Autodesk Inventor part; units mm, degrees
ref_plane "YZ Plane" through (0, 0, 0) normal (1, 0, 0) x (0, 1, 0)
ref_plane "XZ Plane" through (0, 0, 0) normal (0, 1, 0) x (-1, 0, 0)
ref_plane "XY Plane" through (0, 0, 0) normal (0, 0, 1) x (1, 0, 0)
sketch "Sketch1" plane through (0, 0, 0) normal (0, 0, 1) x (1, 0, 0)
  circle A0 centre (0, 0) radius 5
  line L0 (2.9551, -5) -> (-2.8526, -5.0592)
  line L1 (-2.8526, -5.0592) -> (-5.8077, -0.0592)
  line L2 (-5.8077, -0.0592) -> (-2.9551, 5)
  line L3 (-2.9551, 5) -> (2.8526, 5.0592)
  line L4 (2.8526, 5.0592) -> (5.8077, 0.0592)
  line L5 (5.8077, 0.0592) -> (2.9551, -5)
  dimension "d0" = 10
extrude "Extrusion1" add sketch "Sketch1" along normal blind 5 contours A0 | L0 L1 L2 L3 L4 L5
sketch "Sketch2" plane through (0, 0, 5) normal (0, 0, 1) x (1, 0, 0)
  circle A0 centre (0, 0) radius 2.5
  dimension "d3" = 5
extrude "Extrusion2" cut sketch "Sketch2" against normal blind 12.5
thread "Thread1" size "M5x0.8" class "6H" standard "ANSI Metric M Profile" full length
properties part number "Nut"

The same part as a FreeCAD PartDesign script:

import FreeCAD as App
import Part
import Sketcher


def add_polygon(sketch, points):
    """Adds a closed chain of lines whose ends are joined by coincident constraints."""
    first, n = sketch.GeometryCount, len(points)
    for a, b in zip(points, points[1:] + points[:1]):
        sketch.addGeometry(Part.LineSegment(App.Vector(*a, 0), App.Vector(*b, 0)), False)
    for i in range(n):
        sketch.addConstraint(Sketcher.Constraint("Coincident", first + i, 2, first + (i + 1) % n, 1))

doc = App.newDocument("Part")
params = doc.addObject("Spreadsheet::Sheet", "Params")
for row, (alias, value) in enumerate([
    ("pad1_length", "5 mm"),
    ("sketch2_diameter", "5 mm"),
    ("pocket1_length", "12.5 mm"),
], start=1):
    params.set(f"A{row}", alias)
    params.set(f"B{row}", "=" + value)
    params.setAlias(f"B{row}", alias)

body = doc.addObject("PartDesign::Body", "Body")

# Sketch on XY plane
sketch1 = body.newObject("Sketcher::SketchObject", "Sketch")
sketch1.AttachmentSupport = (doc.getObject("XY_Plane"), [""])
sketch1.MapMode = "FlatFace"
add_polygon(sketch1, [(-3, -5), (3, -5), (6, 0), (3, 5), (-3, 5), (-6, 0)])  # lines 0-5
sketch1.addConstraint([
    Sketcher.Constraint("Symmetric", 0, 2, 3, 2, -1, 1),
    Sketcher.Constraint("Symmetric", 1, 2, 4, 2, -1, 1),
    Sketcher.Constraint("Symmetric", 2, 2, 5, 2, -1, 1),
    Sketcher.Constraint("Equal", 0, 1),
    Sketcher.Constraint("Equal", 1, 2),
    Sketcher.Constraint("DistanceY", 0, 2, 3, 2, 10.0),
    Sketcher.Constraint("DistanceY", 1, 2, 2, 2, 5.0),
    Sketcher.Constraint("Distance", 0, 5.808),
    Sketcher.Constraint("DistanceX", -1, 1, 0, 2, 2.955),
])
pad1 = body.newObject("PartDesign::Pad", "Pad")
pad1.Profile = sketch1
pad1.setExpression("Length", "Params.pad1_length")

# Sketch on XY plane
sketch2 = body.newObject("Sketcher::SketchObject", "Sketch001")
sketch2.AttachmentSupport = (doc.getObject("XY_Plane"), [""])
sketch2.MapMode = "FlatFace"
sketch2.AttachmentOffset = App.Placement(App.Vector(0, 0, 5), App.Rotation())
sketch2.addGeometry(Part.Circle(App.Vector(0, 0, 0), App.Vector(0, 0, 1), 2.5), False)
sketch2.addConstraint([
    Sketcher.Constraint("Coincident", 0, 3, -1, 1),
    Sketcher.Constraint("Diameter", 0, 5.0),
])
sketch2.setExpression("Constraints[1]", "Params.sketch2_diameter")
pocket1 = body.newObject("PartDesign::Pocket", "Pocket")
pocket1.Profile = sketch2
pocket1.setExpression("Length", "Params.pocket1_length")

doc.recompute()
